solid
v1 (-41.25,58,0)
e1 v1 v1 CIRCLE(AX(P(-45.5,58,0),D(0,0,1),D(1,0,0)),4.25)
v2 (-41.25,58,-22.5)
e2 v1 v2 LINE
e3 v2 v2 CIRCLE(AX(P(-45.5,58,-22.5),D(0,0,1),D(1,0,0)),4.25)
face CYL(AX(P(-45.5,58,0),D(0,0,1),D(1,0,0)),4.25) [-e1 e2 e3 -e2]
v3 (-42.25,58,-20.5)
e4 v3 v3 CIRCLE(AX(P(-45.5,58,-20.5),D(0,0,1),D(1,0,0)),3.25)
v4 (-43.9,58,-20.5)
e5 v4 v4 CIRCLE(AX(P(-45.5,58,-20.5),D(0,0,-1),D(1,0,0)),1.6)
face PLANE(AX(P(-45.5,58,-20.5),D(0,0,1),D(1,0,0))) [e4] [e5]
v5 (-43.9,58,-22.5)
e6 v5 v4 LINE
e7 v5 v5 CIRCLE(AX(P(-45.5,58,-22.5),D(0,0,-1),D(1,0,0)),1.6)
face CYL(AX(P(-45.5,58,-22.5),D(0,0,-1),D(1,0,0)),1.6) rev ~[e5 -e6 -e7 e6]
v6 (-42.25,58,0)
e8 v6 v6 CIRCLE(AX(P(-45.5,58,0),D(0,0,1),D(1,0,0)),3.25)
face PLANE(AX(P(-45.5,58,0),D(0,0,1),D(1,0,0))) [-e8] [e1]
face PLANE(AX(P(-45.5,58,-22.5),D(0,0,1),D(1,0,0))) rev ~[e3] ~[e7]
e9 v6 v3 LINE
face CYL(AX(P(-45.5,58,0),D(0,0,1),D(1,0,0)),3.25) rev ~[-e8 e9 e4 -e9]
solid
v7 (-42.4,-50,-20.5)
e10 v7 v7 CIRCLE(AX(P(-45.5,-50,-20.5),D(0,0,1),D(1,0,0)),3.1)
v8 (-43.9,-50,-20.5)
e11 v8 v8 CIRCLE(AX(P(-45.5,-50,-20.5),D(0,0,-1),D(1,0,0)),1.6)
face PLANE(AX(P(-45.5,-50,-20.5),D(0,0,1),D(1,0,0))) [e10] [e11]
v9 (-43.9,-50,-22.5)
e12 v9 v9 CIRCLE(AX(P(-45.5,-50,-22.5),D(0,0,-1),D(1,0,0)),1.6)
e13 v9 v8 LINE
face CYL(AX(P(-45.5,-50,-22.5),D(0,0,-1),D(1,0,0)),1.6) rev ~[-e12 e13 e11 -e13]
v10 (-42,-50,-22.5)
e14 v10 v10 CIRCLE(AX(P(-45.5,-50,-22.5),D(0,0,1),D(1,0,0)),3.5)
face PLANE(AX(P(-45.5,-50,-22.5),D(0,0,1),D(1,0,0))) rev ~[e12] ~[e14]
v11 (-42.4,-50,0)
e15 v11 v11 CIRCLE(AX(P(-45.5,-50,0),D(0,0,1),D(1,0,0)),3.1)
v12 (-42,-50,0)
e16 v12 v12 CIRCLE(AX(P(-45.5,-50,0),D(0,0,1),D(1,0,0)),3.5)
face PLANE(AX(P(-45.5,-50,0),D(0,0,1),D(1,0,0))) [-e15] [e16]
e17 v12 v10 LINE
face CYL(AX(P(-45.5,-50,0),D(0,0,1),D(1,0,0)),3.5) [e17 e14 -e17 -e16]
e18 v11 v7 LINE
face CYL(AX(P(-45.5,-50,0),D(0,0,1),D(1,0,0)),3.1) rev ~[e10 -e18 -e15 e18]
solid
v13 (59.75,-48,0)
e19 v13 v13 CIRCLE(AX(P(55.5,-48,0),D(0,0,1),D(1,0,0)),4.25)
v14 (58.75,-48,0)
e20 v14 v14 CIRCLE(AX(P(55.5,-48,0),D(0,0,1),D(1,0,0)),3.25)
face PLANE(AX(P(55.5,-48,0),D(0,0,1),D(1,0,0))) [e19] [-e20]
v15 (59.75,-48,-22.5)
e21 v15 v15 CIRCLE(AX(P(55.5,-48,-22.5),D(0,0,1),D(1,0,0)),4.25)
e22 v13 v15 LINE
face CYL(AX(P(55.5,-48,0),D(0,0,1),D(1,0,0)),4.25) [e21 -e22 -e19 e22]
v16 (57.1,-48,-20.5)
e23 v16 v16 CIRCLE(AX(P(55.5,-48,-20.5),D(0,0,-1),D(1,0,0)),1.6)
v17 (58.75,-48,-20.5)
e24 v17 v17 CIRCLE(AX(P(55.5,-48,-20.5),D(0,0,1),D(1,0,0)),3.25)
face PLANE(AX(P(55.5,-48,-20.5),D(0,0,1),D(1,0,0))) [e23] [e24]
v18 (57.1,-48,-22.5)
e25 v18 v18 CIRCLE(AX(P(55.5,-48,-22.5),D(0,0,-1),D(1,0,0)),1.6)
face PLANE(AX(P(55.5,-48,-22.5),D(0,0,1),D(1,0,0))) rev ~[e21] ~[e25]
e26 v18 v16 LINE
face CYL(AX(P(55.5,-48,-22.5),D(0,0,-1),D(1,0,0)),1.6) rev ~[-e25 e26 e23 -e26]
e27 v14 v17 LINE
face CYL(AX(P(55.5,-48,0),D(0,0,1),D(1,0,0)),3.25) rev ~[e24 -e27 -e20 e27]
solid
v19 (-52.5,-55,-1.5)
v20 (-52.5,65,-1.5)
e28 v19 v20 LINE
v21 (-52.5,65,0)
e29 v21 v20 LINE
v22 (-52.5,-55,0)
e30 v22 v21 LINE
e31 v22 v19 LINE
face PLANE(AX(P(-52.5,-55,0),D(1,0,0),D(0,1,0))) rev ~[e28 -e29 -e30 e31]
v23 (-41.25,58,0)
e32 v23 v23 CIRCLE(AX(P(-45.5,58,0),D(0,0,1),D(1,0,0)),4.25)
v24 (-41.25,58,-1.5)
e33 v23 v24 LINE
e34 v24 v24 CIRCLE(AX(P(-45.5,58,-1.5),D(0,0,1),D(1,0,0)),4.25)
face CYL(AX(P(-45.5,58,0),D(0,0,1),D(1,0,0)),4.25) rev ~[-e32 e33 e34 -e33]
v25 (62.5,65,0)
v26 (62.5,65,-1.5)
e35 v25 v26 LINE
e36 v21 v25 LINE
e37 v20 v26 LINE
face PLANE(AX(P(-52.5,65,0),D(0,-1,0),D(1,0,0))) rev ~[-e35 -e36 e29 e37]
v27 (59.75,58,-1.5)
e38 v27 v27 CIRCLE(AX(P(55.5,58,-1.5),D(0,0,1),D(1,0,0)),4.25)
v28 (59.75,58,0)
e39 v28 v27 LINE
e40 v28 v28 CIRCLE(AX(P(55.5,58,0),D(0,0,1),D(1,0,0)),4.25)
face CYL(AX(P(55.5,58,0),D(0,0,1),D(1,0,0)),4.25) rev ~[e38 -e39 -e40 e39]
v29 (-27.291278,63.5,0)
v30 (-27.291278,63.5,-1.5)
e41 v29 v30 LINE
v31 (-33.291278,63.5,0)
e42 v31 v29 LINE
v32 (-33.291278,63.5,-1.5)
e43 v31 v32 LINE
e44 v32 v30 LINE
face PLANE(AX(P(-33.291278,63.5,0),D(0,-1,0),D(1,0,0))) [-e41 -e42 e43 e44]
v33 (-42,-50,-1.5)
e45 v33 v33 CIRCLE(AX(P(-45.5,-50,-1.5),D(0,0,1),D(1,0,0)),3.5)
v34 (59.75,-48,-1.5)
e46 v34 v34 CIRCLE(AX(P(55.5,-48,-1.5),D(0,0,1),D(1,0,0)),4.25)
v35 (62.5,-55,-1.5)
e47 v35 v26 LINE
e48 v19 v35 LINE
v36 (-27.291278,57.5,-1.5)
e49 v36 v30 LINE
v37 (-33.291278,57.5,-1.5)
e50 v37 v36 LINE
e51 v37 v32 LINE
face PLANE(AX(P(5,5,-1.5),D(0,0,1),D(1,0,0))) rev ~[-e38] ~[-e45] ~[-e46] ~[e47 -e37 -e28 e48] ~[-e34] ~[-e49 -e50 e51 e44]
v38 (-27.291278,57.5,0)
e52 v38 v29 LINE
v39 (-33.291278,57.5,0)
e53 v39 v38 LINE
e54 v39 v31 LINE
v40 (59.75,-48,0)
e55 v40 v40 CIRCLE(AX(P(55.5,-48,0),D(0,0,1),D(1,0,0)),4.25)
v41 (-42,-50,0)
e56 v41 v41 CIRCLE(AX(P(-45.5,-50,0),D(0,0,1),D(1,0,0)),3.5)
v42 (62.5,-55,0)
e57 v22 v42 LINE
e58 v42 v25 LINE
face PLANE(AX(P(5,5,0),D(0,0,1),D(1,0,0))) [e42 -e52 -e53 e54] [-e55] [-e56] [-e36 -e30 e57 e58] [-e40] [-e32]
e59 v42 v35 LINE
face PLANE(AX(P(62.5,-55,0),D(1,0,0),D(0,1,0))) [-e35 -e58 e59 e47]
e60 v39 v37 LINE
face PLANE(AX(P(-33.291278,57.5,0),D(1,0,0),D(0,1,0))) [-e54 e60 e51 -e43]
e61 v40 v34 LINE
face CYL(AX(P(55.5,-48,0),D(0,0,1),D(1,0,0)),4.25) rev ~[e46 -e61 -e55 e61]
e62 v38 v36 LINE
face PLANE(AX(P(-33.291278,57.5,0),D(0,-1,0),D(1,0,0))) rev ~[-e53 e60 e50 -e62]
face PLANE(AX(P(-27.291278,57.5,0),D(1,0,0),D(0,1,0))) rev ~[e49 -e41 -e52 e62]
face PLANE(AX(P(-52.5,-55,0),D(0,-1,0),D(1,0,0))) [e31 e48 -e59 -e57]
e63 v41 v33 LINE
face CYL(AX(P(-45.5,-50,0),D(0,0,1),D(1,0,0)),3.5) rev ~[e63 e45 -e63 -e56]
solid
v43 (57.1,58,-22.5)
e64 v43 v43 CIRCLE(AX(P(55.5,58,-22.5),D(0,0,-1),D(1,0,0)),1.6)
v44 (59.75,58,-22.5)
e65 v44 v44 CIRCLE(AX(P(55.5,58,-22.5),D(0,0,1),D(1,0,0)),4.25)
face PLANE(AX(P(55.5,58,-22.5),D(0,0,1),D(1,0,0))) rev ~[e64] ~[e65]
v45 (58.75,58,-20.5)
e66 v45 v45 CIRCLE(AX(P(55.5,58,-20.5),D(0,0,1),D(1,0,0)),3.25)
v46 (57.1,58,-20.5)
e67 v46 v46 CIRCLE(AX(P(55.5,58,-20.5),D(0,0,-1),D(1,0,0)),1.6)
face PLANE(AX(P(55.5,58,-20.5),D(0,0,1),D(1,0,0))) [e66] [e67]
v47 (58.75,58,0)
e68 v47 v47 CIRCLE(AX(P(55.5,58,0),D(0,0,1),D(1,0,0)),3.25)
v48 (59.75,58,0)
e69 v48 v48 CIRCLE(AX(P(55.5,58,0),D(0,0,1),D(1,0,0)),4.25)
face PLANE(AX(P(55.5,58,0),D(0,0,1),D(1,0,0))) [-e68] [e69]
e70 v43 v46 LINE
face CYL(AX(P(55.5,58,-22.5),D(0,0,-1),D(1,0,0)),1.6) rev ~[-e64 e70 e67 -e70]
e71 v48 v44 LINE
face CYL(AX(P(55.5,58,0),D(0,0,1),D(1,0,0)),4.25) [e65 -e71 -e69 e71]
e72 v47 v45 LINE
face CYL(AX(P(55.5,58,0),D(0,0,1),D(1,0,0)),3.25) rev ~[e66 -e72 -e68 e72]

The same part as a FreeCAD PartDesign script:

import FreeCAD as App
import Part
import Sketcher
from FreeCAD import Vector
Q = App.Units.Quantity

doc = App.newDocument("Part")
params = doc.addObject("Spreadsheet::Sheet", "Params")
for row, (alias, value) in enumerate([
    ("sketch1_diameter", "7 mm"),
    ("sketch1_diameter2", "8.5 mm"),
    ("sketch1_width", "115 mm"),
    ("sketch1_width2", "6 mm"),
    ("sketch1_height", "120 mm"),
    ("pad1_length", "1.5 mm"),
    ("sketch2_diameter", "7 mm"),
    ("sketch2_diameter2", "8.5 mm"),
    ("pad2_length", "22.5 mm"),
    ("sketch3_diameter", "6.5 mm"),
    ("pocket1_length", "20.5 mm"),
    ("sketch4_diameter", "6.5 mm"),
    ("pocket2_length", "20.5 mm"),
    ("sketch5_diameter", "6.2 mm"),
    ("pocket3_length", "20.5 mm"),
    ("sketch6_diameter", "6.5 mm"),
    ("pocket4_length", "20.5 mm"),
    ("sketch7_diameter", "3.2 mm"),
    ("pocket5_length", "2.5 mm"),
    ("sketch8_diameter", "3.2 mm"),
    ("pocket6_length", "2.5 mm"),
    ("sketch9_diameter", "3.2 mm"),
    ("pocket7_length", "2.5 mm"),
    ("sketch10_diameter", "3.2 mm"),
    ("pocket8_length", "2.5 mm"),
], start=1):
    params.set(f"A{row}", alias)
    params.set(f"B{row}", "=" + value)
    params.setAlias(f"B{row}", alias)

body = doc.addObject("PartDesign::Body", "Body")

# Sketch on XY plane
sketch1 = doc.addObject("Sketcher::SketchObject", "Sketch")
body.addObject(sketch1)
sketch1.AttachmentSupport = (doc.XY_Plane, [""])
sketch1.MapMode = "FlatFace"
sketch1.addGeometry(Part.LineSegment(Vector(-52.5, 65, 0), Vector(-52.5, -55, 0)), False)
sketch1.addGeometry(Part.LineSegment(Vector(-52.5, -55, 0), Vector(62.5, -55, 0)), False)
sketch1.addGeometry(Part.LineSegment(Vector(62.5, -55, 0), Vector(62.5, 65, 0)), False)
sketch1.addGeometry(Part.LineSegment(Vector(62.5, 65, 0), Vector(-52.5, 65, 0)), False)
sketch1.addGeometry(Part.Circle(Vector(-45.5, -50, 0), Vector(0, 0, 1), 3.5), False)
sketch1.addGeometry(Part.Circle(Vector(55.5, -48, 0), Vector(0, 0, 1), 4.25), False)
sketch1.addGeometry(Part.Circle(Vector(-45.5, 58, 0), Vector(0, 0, 1), 4.25), False)
sketch1.addGeometry(Part.LineSegment(Vector(-27.291278, 57.5, 0), Vector(-33.291278, 57.5, 0)), False)
sketch1.addGeometry(Part.LineSegment(Vector(-33.291278, 57.5, 0), Vector(-33.291278, 63.5, 0)), False)
sketch1.addGeometry(Part.LineSegment(Vector(-33.291278, 63.5, 0), Vector(-27.291278, 63.5, 0)), False)
sketch1.addGeometry(Part.LineSegment(Vector(-27.291278, 63.5, 0), Vector(-27.291278, 57.5, 0)), False)
sketch1.addGeometry(Part.Circle(Vector(55.5, 58, 0), Vector(0, 0, 1), 4.25), False)
sketch1.addConstraint(Sketcher.Constraint("Coincident", 0, 2, 1, 1))
sketch1.addConstraint(Sketcher.Constraint("Coincident", 1, 2, 2, 1))
sketch1.addConstraint(Sketcher.Constraint("Coincident", 2, 2, 3, 1))
sketch1.addConstraint(Sketcher.Constraint("Coincident", 3, 2, 0, 1))
sketch1.addConstraint(Sketcher.Constraint("Coincident", 7, 2, 8, 1))
sketch1.addConstraint(Sketcher.Constraint("Coincident", 8, 2, 9, 1))
sketch1.addConstraint(Sketcher.Constraint("Coincident", 9, 2, 10, 1))
sketch1.addConstraint(Sketcher.Constraint("Coincident", 10, 2, 7, 1))
sketch1.addConstraint(Sketcher.Constraint("Vertical", 0))
sketch1.addConstraint(Sketcher.Constraint("Horizontal", 1))
sketch1.addConstraint(Sketcher.Constraint("Vertical", 2))
sketch1.addConstraint(Sketcher.Constraint("Horizontal", 3))
sketch1.addConstraint(Sketcher.Constraint("Horizontal", 7))
sketch1.addConstraint(Sketcher.Constraint("Vertical", 8))
sketch1.addConstraint(Sketcher.Constraint("Horizontal", 9))
sketch1.addConstraint(Sketcher.Constraint("Vertical", 10))
sketch1.addConstraint(Sketcher.Constraint("Equal", 5, 6))
sketch1.addConstraint(Sketcher.Constraint("Equal", 6, 11))
sketch1.addConstraint(Sketcher.Constraint("Horizontal", 6, 3, 11, 3))
sketch1.addConstraint(Sketcher.Constraint("Vertical", 4, 3, 6, 3))
sketch1.addConstraint(Sketcher.Constraint("Vertical", 5, 3, 11, 3))
sketch1.addConstraint(Sketcher.Constraint("Equal", 9, 8))
sketch1.addConstraint(Sketcher.Constraint("Diameter", 4, Q("7 mm")))
sketch1.addConstraint(Sketcher.Constraint("Diameter", 5, Q("8.5 mm")))
sketch1.addConstraint(Sketcher.Constraint("DistanceX", 1, 1, 1, 2, Q("115 mm")))
sketch1.addConstraint(Sketcher.Constraint("DistanceX", 7, 2, 7, 1, Q("6 mm")))
sketch1.addConstraint(Sketcher.Constraint("DistanceY", 0, 2, 0, 1, Q("120 mm")))
sketch1.addConstraint(Sketcher.Constraint("DistanceY", 4, 3, -1, 1, Q("50 mm")))
sketch1.addConstraint(Sketcher.Constraint("DistanceY", 5, 3, -1, 1, Q("48 mm")))
sketch1.addConstraint(Sketcher.Constraint("DistanceY", -1, 1, 6, 3, Q("58 mm")))
sketch1.addConstraint(Sketcher.Constraint("DistanceY", 0, 2, -1, 1, Q("55 mm")))
sketch1.addConstraint(Sketcher.Constraint("DistanceX", 4, 3, 5, 3, Q("101 mm")))
sketch1.addConstraint(Sketcher.Constraint("DistanceX", 0, 2, 4, 3, Q("7 mm")))
sketch1.addConstraint(Sketcher.Constraint("DistanceX", 4, 3, -1, 1, Q("45.5 mm")))
sketch1.addConstraint(Sketcher.Constraint("DistanceY", -1, 1, 7, 2, Q("57.5 mm")))
sketch1.addConstraint(Sketcher.Constraint("DistanceX", 7, 2, 11, 3, Q("88.791278 mm")))
sketch1.setExpression("Constraints[22]", "Params.sketch1_diameter")
sketch1.setExpression("Constraints[23]", "Params.sketch1_diameter2")
sketch1.setExpression("Constraints[24]", "Params.sketch1_width")
sketch1.setExpression("Constraints[25]", "Params.sketch1_width2")
sketch1.setExpression("Constraints[26]", "Params.sketch1_height")
pad1 = doc.addObject("PartDesign::Pad", "Pad")
body.addObject(pad1)
pad1.Profile = sketch1
pad1.setExpression("Length", "Params.pad1_length")
pad1.Reversed = True
body2 = doc.addObject("PartDesign::Body", "Body001")
body2.AllowCompound = True

# Sketch on XY plane
sketch2 = doc.addObject("Sketcher::SketchObject", "Sketch001")
body2.addObject(sketch2)
sketch2.AttachmentSupport = (doc.getObject("XY_Plane001"), [""])
sketch2.MapMode = "FlatFace"
sketch2.addGeometry(Part.Circle(Vector(-45.5, 58, 0), Vector(0, 0, 1), 4.25), False)
sketch2.addGeometry(Part.Circle(Vector(55.5, 58, 0), Vector(0, 0, 1), 4.25), False)
sketch2.addGeometry(Part.Circle(Vector(-45.5, -50, 0), Vector(0, 0, 1), 3.5), False)
sketch2.addGeometry(Part.Circle(Vector(55.5, -48, 0), Vector(0, 0, 1), 4.25), False)
sketch2.addConstraint(Sketcher.Constraint("Equal", 0, 1))
sketch2.addConstraint(Sketcher.Constraint("Equal", 1, 3))
sketch2.addConstraint(Sketcher.Constraint("Horizontal", 0, 3, 1, 3))
sketch2.addConstraint(Sketcher.Constraint("Vertical", 0, 3, 2, 3))
sketch2.addConstraint(Sketcher.Constraint("Vertical", 1, 3, 3, 3))
sketch2.addConstraint(Sketcher.Constraint("Diameter", 2, Q("7 mm")))
sketch2.addConstraint(Sketcher.Constraint("Diameter", 0, Q("8.5 mm")))
sketch2.addConstraint(Sketcher.Constraint("DistanceY", -1, 1, 0, 3, Q("58 mm")))
sketch2.addConstraint(Sketcher.Constraint("DistanceY", 2, 3, -1, 1, Q("50 mm")))
sketch2.addConstraint(Sketcher.Constraint("DistanceY", 3, 3, -1, 1, Q("48 mm")))
sketch2.addConstraint(Sketcher.Constraint("DistanceX", 0, 3, 1, 3, Q("101 mm")))
sketch2.addConstraint(Sketcher.Constraint("DistanceX", 0, 3, -1, 1, Q("45.5 mm")))
sketch2.setExpression("Constraints[5]", "Params.sketch2_diameter")
sketch2.setExpression("Constraints[6]", "Params.sketch2_diameter2")
pad2 = doc.addObject("PartDesign::Pad", "Pad001")
body2.addObject(pad2)
pad2.Profile = sketch2
pad2.setExpression("Length", "Params.pad2_length")
pad2.Reversed = True

# Sketch on XY plane
sketch3 = doc.addObject("Sketcher::SketchObject", "Sketch002")
body2.addObject(sketch3)
sketch3.AttachmentSupport = (doc.getObject("XY_Plane001"), [""])
sketch3.MapMode = "FlatFace"
sketch3.addGeometry(Part.Circle(Vector(55.5, 58, 0), Vector(0, 0, 1), 3.25), False)
sketch3.addConstraint(Sketcher.Constraint("Diameter", 0, Q("6.5 mm")))
sketch3.addConstraint(Sketcher.Constraint("DistanceY", -1, 1, 0, 3, Q("58 mm")))
sketch3.addConstraint(Sketcher.Constraint("DistanceX", -1, 1, 0, 3, Q("55.5 mm")))
sketch3.setExpression("Constraints[0]", "Params.sketch3_diameter")
pocket1 = doc.addObject("PartDesign::Pocket", "Pocket")
body2.addObject(pocket1)
pocket1.Profile = sketch3
pocket1.setExpression("Length", "Params.pocket1_length")

# Sketch on XY plane
sketch4 = doc.addObject("Sketcher::SketchObject", "Sketch003")
body2.addObject(sketch4)
sketch4.AttachmentSupport = (doc.getObject("XY_Plane001"), [""])
sketch4.MapMode = "FlatFace"
sketch4.addGeometry(Part.Circle(Vector(-45.5, 58, 0), Vector(0, 0, 1), 3.25), False)
sketch4.addConstraint(Sketcher.Constraint("Diameter", 0, Q("6.5 mm")))
sketch4.addConstraint(Sketcher.Constraint("DistanceY", -1, 1, 0, 3, Q("58 mm")))
sketch4.addConstraint(Sketcher.Constraint("DistanceX", 0, 3, -1, 1, Q("45.5 mm")))
sketch4.setExpression("Constraints[0]", "Params.sketch4_diameter")
pocket2 = doc.addObject("PartDesign::Pocket", "Pocket001")
body2.addObject(pocket2)
pocket2.Profile = sketch4
pocket2.setExpression("Length", "Params.pocket2_length")

# Sketch on XY plane
sketch5 = doc.addObject("Sketcher::SketchObject", "Sketch004")
body2.addObject(sketch5)
sketch5.AttachmentSupport = (doc.getObject("XY_Plane001"), [""])
sketch5.MapMode = "FlatFace"
sketch5.addGeometry(Part.Circle(Vector(-45.5, -50, 0), Vector(0, 0, 1), 3.1), False)
sketch5.addConstraint(Sketcher.Constraint("Diameter", 0, Q("6.2 mm")))
sketch5.addConstraint(Sketcher.Constraint("DistanceY", 0, 3, -1, 1, Q("50 mm")))
sketch5.addConstraint(Sketcher.Constraint("DistanceX", 0, 3, -1, 1, Q("45.5 mm")))
sketch5.setExpression("Constraints[0]", "Params.sketch5_diameter")
pocket3 = doc.addObject("PartDesign::Pocket", "Pocket002")
body2.addObject(pocket3)
pocket3.Profile = sketch5
pocket3.setExpression("Length", "Params.pocket3_length")

# Sketch on XY plane
sketch6 = doc.addObject("Sketcher::SketchObject", "Sketch005")
body2.addObject(sketch6)
sketch6.AttachmentSupport = (doc.getObject("XY_Plane001"), [""])
sketch6.MapMode = "FlatFace"
sketch6.addGeometry(Part.Circle(Vector(55.5, -48, 0), Vector(0, 0, 1), 3.25), False)
sketch6.addConstraint(Sketcher.Constraint("Diameter", 0, Q("6.5 mm")))
sketch6.addConstraint(Sketcher.Constraint("DistanceY", 0, 3, -1, 1, Q("48 mm")))
sketch6.addConstraint(Sketcher.Constraint("DistanceX", -1, 1, 0, 3, Q("55.5 mm")))
sketch6.setExpression("Constraints[0]", "Params.sketch6_diameter")
pocket4 = doc.addObject("PartDesign::Pocket", "Pocket003")
body2.addObject(pocket4)
pocket4.Profile = sketch6
pocket4.setExpression("Length", "Params.pocket4_length")

# Sketch on XY plane
sketch7 = doc.addObject("Sketcher::SketchObject", "Sketch006")
body2.addObject(sketch7)
sketch7.AttachmentSupport = (doc.getObject("XY_Plane001"), [""])
sketch7.MapMode = "FlatFace"
sketch7.AttachmentOffset = App.Placement(Vector(0, 0, -22.5), App.Rotation())
sketch7.addGeometry(Part.Circle(Vector(-45.5, -50, 0), Vector(0, 0, 1), 1.6), False)
sketch7.addConstraint(Sketcher.Constraint("Diameter", 0, Q("3.2 mm")))
sketch7.addConstraint(Sketcher.Constraint("DistanceY", 0, 3, -1, 1, Q("50 mm")))
sketch7.addConstraint(Sketcher.Constraint("DistanceX", 0, 3, -1, 1, Q("45.5 mm")))
sketch7.setExpression("Constraints[0]", "Params.sketch7_diameter")
pocket5 = doc.addObject("PartDesign::Pocket", "Pocket004")
body2.addObject(pocket5)
pocket5.Profile = sketch7
pocket5.setExpression("Length", "Params.pocket5_length")
pocket5.Reversed = True

# Sketch on XY plane
sketch8 = doc.addObject("Sketcher::SketchObject", "Sketch007")
body2.addObject(sketch8)
sketch8.AttachmentSupport = (doc.getObject("XY_Plane001"), [""])
sketch8.MapMode = "FlatFace"
sketch8.AttachmentOffset = App.Placement(Vector(0, 0, -22.5), App.Rotation())
sketch8.addGeometry(Part.Circle(Vector(-45.5, 58, 0), Vector(0, 0, 1), 1.6), False)
sketch8.addConstraint(Sketcher.Constraint("Diameter", 0, Q("3.2 mm")))
sketch8.addConstraint(Sketcher.Constraint("DistanceY", -1, 1, 0, 3, Q("58 mm")))
sketch8.addConstraint(Sketcher.Constraint("DistanceX", 0, 3, -1, 1, Q("45.5 mm")))
sketch8.setExpression("Constraints[0]", "Params.sketch8_diameter")
pocket6 = doc.addObject("PartDesign::Pocket", "Pocket005")
body2.addObject(pocket6)
pocket6.Profile = sketch8
pocket6.setExpression("Length", "Params.pocket6_length")
pocket6.Reversed = True

# Sketch on XY plane
sketch9 = doc.addObject("Sketcher::SketchObject", "Sketch008")
body2.addObject(sketch9)
sketch9.AttachmentSupport = (doc.getObject("XY_Plane001"), [""])
sketch9.MapMode = "FlatFace"
sketch9.AttachmentOffset = App.Placement(Vector(0, 0, -22.5), App.Rotation())
sketch9.addGeometry(Part.Circle(Vector(55.5, 58, 0), Vector(0, 0, 1), 1.6), False)
sketch9.addConstraint(Sketcher.Constraint("Diameter", 0, Q("3.2 mm")))
sketch9.addConstraint(Sketcher.Constraint("DistanceY", -1, 1, 0, 3, Q("58 mm")))
sketch9.addConstraint(Sketcher.Constraint("DistanceX", -1, 1, 0, 3, Q("55.5 mm")))
sketch9.setExpression("Constraints[0]", "Params.sketch9_diameter")
pocket7 = doc.addObject("PartDesign::Pocket", "Pocket006")
body2.addObject(pocket7)
pocket7.Profile = sketch9
pocket7.setExpression("Length", "Params.pocket7_length")
pocket7.Reversed = True

# Sketch on XY plane
sketch10 = doc.addObject("Sketcher::SketchObject", "Sketch009")
body2.addObject(sketch10)
sketch10.AttachmentSupport = (doc.getObject("XY_Plane001"), [""])
sketch10.MapMode = "FlatFace"
sketch10.AttachmentOffset = App.Placement(Vector(0, 0, -22.5), App.Rotation())
sketch10.addGeometry(Part.Circle(Vector(55.5, -48, 0), Vector(0, 0, 1), 1.6), False)
sketch10.addConstraint(Sketcher.Constraint("Diameter", 0, Q("3.2 mm")))
sketch10.addConstraint(Sketcher.Constraint("DistanceY", 0, 3, -1, 1, Q("48 mm")))
sketch10.addConstraint(Sketcher.Constraint("DistanceX", -1, 1, 0, 3, Q("55.5 mm")))
sketch10.setExpression("Constraints[0]", "Params.sketch10_diameter")
pocket8 = doc.addObject("PartDesign::Pocket", "Pocket007")
body2.addObject(pocket8)
pocket8.Profile = sketch10
pocket8.setExpression("Length", "Params.pocket8_length")
pocket8.Reversed = True

doc.recompute()
